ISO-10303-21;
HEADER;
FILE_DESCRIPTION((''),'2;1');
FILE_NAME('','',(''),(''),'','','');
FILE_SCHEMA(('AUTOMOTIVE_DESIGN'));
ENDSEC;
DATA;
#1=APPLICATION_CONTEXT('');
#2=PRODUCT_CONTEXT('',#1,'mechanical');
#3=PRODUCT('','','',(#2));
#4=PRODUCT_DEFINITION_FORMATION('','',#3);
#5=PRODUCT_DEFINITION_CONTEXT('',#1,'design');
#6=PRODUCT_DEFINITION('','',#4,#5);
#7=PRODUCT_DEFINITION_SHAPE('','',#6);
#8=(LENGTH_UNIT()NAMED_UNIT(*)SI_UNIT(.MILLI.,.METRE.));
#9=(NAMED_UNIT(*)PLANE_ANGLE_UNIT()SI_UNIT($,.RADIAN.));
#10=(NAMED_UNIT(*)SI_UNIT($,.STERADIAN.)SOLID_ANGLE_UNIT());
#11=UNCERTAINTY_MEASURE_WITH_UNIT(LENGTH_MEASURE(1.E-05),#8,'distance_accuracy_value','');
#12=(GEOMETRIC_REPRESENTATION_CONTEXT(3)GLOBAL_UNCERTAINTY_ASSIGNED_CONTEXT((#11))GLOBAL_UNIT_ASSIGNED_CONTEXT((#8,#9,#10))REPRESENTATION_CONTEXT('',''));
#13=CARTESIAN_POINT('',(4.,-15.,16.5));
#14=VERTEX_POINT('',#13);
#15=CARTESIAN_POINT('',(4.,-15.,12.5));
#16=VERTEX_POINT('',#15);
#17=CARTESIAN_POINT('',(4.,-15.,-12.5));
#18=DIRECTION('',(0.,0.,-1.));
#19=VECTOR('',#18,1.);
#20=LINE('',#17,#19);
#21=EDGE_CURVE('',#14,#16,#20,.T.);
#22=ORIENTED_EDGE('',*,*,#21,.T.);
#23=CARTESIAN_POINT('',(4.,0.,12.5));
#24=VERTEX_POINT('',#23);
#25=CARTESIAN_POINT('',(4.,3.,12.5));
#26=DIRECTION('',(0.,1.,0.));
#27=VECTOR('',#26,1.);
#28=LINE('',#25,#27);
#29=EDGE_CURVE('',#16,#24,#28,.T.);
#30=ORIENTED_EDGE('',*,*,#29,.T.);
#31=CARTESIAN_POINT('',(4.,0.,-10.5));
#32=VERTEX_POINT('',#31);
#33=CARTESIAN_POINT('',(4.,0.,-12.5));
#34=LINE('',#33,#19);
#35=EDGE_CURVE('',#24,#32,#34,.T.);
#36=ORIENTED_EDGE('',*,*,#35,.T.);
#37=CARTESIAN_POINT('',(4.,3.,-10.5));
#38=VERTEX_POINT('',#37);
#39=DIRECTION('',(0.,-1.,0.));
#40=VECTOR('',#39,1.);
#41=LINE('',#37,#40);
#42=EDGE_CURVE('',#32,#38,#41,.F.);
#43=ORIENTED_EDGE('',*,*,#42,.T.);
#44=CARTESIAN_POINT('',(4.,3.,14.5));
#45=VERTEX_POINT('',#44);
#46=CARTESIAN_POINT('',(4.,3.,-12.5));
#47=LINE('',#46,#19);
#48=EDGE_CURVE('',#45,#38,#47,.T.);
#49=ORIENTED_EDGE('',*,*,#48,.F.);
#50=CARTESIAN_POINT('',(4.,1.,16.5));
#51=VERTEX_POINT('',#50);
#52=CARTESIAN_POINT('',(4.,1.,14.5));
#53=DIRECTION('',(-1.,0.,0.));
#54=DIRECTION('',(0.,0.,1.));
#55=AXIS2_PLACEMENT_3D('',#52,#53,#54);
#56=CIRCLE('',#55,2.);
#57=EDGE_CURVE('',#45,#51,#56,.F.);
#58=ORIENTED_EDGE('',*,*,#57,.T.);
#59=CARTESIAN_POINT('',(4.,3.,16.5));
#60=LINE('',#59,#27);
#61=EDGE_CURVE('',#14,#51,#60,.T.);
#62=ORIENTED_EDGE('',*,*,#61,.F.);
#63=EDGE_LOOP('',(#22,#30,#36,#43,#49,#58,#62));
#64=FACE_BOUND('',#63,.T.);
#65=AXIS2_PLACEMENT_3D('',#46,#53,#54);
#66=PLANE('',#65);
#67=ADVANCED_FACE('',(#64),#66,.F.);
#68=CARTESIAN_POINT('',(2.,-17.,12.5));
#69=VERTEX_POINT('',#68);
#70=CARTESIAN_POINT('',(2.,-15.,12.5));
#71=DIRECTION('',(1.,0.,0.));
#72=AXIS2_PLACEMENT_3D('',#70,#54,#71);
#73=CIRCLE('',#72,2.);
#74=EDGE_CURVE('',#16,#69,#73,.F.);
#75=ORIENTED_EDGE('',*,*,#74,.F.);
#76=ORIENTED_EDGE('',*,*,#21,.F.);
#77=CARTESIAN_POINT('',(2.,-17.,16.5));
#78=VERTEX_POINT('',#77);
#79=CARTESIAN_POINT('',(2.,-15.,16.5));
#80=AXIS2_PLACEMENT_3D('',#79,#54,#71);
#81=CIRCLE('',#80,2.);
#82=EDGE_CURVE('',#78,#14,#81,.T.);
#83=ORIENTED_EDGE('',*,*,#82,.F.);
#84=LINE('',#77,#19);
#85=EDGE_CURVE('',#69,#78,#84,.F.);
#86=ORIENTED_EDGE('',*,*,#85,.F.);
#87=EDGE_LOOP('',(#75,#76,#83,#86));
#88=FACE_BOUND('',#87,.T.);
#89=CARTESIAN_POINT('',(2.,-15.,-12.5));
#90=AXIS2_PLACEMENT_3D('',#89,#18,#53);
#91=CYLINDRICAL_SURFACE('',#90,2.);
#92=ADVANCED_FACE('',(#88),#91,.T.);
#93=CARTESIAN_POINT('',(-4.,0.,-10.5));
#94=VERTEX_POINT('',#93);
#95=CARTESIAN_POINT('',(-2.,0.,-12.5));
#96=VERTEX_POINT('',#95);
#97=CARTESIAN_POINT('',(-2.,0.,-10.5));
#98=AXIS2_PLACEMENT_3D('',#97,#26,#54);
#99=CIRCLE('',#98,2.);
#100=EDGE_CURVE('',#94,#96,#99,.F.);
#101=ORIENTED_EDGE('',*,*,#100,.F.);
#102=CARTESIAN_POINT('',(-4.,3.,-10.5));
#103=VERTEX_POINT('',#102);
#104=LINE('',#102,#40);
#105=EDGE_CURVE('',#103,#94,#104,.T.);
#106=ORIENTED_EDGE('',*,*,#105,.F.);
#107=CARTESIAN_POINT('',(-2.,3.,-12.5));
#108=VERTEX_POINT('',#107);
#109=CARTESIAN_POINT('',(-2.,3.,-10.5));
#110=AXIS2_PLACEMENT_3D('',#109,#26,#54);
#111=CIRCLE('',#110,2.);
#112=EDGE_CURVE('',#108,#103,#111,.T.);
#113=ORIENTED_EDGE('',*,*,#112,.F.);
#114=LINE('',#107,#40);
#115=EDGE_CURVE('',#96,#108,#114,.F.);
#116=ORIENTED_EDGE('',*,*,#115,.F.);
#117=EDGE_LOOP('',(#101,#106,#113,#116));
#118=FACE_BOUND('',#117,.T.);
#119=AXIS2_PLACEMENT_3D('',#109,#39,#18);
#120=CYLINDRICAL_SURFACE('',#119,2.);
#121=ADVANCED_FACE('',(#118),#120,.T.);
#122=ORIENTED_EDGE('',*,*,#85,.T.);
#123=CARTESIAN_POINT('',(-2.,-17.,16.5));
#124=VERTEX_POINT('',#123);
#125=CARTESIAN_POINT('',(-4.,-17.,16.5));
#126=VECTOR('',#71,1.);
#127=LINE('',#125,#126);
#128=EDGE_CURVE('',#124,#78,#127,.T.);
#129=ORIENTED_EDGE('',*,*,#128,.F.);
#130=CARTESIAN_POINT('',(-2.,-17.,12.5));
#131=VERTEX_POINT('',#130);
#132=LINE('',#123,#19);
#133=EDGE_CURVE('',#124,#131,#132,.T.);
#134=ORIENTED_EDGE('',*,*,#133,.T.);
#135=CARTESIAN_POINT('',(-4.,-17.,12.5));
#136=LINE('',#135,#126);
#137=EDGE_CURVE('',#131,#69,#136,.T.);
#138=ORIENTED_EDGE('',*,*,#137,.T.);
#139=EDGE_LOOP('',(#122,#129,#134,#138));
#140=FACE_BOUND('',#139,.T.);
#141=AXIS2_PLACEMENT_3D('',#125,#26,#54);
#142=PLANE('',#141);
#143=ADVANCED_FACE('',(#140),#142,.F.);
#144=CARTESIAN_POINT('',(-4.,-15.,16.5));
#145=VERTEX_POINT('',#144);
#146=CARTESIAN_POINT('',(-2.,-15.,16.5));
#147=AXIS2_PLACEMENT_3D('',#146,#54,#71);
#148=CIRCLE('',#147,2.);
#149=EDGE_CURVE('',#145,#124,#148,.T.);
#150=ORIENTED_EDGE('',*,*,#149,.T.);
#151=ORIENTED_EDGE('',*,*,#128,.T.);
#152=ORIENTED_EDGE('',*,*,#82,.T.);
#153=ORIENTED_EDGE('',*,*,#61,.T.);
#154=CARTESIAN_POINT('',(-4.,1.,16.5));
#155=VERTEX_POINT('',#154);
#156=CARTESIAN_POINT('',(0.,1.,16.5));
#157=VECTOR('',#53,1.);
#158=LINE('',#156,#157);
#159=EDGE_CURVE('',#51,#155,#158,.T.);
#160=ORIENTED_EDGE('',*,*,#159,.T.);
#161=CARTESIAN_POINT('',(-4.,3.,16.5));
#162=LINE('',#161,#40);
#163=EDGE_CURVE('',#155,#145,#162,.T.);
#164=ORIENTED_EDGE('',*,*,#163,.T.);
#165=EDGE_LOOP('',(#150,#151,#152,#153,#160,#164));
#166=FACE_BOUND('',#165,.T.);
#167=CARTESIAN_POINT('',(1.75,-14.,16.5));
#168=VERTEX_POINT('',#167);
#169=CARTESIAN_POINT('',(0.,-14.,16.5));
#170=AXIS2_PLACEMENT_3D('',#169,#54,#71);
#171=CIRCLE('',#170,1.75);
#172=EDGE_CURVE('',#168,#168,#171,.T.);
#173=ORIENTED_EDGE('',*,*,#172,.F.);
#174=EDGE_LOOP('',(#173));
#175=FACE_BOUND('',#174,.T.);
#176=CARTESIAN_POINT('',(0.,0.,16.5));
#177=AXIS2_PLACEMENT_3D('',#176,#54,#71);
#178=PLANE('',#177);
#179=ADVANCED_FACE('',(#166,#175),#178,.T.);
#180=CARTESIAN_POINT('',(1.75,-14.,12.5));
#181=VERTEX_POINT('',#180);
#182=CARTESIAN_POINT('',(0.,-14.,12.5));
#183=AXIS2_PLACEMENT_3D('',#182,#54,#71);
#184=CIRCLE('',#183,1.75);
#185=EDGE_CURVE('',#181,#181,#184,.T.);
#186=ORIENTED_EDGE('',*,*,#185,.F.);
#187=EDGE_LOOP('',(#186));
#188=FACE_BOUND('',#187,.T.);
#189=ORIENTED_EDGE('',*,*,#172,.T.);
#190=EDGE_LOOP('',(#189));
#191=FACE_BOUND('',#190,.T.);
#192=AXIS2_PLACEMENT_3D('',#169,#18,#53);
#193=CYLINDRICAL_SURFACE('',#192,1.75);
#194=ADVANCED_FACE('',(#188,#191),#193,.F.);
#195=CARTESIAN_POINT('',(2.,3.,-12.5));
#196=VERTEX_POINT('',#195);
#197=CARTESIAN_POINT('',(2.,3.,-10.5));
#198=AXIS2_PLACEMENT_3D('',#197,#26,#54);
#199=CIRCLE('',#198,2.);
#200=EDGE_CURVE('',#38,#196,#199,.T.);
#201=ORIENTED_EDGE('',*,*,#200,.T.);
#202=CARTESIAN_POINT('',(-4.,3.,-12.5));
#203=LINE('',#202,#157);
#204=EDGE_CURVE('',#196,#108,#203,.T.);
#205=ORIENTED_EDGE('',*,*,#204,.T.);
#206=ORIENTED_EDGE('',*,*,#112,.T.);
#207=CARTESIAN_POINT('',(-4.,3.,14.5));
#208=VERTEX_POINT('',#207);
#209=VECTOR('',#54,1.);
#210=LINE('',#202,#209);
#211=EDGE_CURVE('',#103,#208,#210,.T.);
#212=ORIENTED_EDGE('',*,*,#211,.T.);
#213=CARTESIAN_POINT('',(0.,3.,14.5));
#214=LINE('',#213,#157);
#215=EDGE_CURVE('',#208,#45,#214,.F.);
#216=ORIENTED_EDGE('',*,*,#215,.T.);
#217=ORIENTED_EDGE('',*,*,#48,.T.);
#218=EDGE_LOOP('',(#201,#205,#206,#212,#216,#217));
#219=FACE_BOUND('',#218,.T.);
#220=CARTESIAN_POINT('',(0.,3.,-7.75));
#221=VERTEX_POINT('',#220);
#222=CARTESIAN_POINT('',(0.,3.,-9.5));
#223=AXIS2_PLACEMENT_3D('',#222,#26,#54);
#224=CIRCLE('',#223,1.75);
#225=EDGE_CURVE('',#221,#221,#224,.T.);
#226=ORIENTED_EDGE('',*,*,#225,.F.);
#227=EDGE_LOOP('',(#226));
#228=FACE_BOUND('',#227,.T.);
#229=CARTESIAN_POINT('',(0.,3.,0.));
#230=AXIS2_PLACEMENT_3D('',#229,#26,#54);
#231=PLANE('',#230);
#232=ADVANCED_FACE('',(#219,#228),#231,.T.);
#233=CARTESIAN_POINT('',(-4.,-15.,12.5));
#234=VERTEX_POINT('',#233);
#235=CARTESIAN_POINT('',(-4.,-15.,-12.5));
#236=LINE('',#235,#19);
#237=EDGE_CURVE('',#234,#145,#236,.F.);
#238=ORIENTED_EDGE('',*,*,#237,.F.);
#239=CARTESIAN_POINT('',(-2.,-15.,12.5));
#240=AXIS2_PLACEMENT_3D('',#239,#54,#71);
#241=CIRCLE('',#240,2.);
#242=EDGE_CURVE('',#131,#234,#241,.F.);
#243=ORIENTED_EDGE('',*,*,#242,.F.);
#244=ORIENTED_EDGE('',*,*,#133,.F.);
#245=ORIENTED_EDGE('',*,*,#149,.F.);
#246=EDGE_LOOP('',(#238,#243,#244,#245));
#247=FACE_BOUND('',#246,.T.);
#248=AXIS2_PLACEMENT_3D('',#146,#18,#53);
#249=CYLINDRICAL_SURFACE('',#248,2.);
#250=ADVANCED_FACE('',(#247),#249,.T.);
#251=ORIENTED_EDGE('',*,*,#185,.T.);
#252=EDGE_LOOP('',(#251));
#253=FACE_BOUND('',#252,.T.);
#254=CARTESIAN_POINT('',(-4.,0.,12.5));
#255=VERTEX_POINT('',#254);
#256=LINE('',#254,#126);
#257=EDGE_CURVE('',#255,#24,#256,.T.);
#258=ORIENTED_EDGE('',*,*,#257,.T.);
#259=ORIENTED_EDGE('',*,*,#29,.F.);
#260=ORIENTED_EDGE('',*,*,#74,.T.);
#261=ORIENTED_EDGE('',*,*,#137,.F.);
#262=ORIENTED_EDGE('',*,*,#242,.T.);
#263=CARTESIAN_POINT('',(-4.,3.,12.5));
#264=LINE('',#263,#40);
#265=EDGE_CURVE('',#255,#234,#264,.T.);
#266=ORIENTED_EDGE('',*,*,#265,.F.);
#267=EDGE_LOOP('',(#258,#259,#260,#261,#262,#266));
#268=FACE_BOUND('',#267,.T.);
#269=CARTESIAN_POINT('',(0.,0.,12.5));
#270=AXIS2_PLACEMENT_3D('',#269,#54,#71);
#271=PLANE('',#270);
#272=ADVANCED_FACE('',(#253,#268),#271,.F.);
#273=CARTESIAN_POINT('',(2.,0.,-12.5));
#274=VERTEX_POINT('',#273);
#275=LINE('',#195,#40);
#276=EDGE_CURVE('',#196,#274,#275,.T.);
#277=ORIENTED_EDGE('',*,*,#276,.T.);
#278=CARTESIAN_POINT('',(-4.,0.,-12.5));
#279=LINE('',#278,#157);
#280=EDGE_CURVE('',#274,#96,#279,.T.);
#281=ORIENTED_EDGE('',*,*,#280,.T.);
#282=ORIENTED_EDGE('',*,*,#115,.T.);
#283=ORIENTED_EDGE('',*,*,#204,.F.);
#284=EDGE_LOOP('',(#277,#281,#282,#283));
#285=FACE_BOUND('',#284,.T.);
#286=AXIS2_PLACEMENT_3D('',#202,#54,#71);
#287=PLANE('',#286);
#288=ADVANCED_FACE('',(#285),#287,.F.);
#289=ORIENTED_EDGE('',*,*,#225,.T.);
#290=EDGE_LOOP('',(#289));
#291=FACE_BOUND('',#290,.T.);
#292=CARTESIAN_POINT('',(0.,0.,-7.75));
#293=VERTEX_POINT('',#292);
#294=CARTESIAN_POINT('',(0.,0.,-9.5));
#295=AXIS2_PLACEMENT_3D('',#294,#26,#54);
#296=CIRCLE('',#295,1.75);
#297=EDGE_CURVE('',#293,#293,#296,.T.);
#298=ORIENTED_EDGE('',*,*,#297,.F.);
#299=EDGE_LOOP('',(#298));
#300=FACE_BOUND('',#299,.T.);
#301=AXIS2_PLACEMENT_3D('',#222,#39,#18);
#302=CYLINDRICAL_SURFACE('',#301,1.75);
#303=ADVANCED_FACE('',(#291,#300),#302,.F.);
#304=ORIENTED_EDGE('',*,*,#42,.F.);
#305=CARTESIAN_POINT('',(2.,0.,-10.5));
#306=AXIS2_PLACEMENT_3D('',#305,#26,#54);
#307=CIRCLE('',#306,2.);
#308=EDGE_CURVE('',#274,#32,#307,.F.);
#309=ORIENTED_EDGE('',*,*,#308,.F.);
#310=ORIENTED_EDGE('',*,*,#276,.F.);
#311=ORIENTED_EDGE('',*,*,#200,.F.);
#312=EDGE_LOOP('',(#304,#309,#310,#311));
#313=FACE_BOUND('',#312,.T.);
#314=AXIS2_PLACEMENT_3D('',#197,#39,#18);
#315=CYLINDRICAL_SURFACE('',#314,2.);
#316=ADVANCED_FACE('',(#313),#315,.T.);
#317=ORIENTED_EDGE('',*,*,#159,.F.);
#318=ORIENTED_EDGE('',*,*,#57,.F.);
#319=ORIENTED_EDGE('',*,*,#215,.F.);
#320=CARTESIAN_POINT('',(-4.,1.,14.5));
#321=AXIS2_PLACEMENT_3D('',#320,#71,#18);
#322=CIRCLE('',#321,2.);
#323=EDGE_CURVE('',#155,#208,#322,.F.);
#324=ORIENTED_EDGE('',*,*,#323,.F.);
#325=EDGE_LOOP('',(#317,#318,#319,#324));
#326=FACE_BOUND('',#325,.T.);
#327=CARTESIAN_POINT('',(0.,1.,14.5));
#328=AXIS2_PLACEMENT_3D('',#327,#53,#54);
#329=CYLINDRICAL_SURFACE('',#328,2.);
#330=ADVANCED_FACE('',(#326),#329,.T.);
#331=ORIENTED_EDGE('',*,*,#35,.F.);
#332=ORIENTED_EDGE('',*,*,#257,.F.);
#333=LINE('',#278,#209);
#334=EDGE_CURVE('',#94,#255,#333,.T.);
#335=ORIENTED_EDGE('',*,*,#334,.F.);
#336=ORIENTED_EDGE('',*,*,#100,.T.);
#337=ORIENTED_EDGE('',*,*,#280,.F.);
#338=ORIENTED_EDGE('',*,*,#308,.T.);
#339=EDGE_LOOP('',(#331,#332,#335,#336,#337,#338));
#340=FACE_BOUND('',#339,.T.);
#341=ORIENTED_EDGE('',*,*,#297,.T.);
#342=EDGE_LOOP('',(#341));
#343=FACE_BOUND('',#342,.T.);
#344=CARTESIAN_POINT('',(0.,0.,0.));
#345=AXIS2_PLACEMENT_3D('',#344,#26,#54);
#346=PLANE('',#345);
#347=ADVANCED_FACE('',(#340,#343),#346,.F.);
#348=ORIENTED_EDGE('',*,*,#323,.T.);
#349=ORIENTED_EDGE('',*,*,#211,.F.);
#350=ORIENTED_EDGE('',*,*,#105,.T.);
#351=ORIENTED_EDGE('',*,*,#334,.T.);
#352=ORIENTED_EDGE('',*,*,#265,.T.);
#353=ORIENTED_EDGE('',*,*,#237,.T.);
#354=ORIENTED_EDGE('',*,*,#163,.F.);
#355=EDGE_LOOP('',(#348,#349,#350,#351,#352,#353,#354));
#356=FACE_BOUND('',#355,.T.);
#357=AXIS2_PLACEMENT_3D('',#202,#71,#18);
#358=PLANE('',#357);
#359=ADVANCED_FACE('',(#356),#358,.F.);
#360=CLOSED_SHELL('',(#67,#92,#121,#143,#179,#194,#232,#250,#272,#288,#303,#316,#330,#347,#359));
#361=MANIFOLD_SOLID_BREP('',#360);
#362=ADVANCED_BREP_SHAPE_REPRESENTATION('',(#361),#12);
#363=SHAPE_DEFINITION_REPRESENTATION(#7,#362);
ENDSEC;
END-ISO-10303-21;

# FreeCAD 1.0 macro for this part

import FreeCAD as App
import Part
import Sketcher

V = App.Vector
Q = App.Units.Quantity


def edges_at(feature, points):
    """Names of the edges that pass closest to the given points."""
    edges = feature.Shape.Edges
    near = lambda p: min(range(len(edges)), key=lambda i: edges[i].distToShape(Part.Vertex(*p))[0])
    return sorted({f"Edge{near(p) + 1}" for p in points})

doc = App.newDocument("Part")
body = doc.addObject("PartDesign::Body", "Body")

# Sketch on XZ plane
sketch1 = body.newObject("Sketcher::SketchObject", "Sketch")
sketch1.AttachmentSupport = (doc.getObject("XZ_Plane"), [""])
sketch1.MapMode = "FlatFace"
sketch1.addGeometry([
    Part.LineSegment(V(-4, -12.5, 0), V(-4, 12.5, 0)),  # 0
    Part.LineSegment(V(-4, 12.5, 0), V(4, 12.5, 0)),  # 1
    Part.LineSegment(V(4, 12.5, 0), V(4, -12.5, 0)),  # 2
    Part.LineSegment(V(4, -12.5, 0), V(-4, -12.5, 0)),  # 3
    Part.Circle(V(0, -9.5, 0), V(0, 0, 1), 1.8),  # 4
], False)
sketch1.addConstraint([
    Sketcher.Constraint("Coincident", 0, 2, 1, 1),
    Sketcher.Constraint("Coincident", 1, 2, 2, 1),
    Sketcher.Constraint("Coincident", 2, 2, 3, 1),
    Sketcher.Constraint("Coincident", 3, 2, 0, 1),
    Sketcher.Constraint("Vertical", 0),
    Sketcher.Constraint("Horizontal", 1),
    Sketcher.Constraint("Vertical", 2),
    Sketcher.Constraint("Horizontal", 3),
    Sketcher.Constraint("Symmetric", 0, 2, 2, 2, -1, 1),
    Sketcher.Constraint("PointOnObject", 4, 3, -2),
    Sketcher.Constraint("Diameter", 4, Q("3.5 mm")),
    Sketcher.Constraint("DistanceX", 1, 1, 1, 2, Q("8 mm")),
    Sketcher.Constraint("DistanceY", 0, 1, 0, 2, Q("25 mm")),
    Sketcher.Constraint("DistanceY", 4, 3, 0, 2, Q("22 mm")),
])
pad1 = body.newObject("PartDesign::Pad", "Pad")
pad1.Profile = sketch1
pad1.Length = 3
pad1.Reversed = True

# Sketch on XY plane
sketch2 = body.newObject("Sketcher::SketchObject", "Sketch001")
sketch2.AttachmentSupport = (doc.getObject("XY_Plane"), [""])
sketch2.MapMode = "FlatFace"
sketch2.AttachmentOffset = App.Placement(V(0, 0, 12.5), App.Rotation())
sketch2.addGeometry([
    Part.LineSegment(V(-4, 3, 0), V(-4, -17, 0)),  # 0
    Part.LineSegment(V(-4, -17, 0), V(4, -17, 0)),  # 1
    Part.LineSegment(V(4, -17, 0), V(4, 3, 0)),  # 2
    Part.LineSegment(V(4, 3, 0), V(-4, 3, 0)),  # 3
    Part.Circle(V(0, -14, 0), V(0, 0, 1), 1.8),  # 4
], False)
sketch2.addConstraint([
    Sketcher.Constraint("Coincident", 0, 2, 1, 1),
    Sketcher.Constraint("Coincident", 1, 2, 2, 1),
    Sketcher.Constraint("Coincident", 2, 2, 3, 1),
    Sketcher.Constraint("Coincident", 3, 2, 0, 1),
    Sketcher.Constraint("Vertical", 0),
    Sketcher.Constraint("Horizontal", 1),
    Sketcher.Constraint("Vertical", 2),
    Sketcher.Constraint("Horizontal", 3),
    Sketcher.Constraint("PointOnObject", 4, 3, -2),
    Sketcher.Constraint("Diameter", 4, Q("3.5 mm")),
    Sketcher.Constraint("DistanceX", 1, 1, 1, 2, Q("8 mm")),
    Sketcher.Constraint("DistanceY", 0, 2, 0, 1, Q("20 mm")),
    Sketcher.Constraint("DistanceY", 4, 3, -1, 1, Q("14 mm")),
    Sketcher.Constraint("DistanceX", 0, 2, -1, 1, Q("4 mm")),
    Sketcher.Constraint("DistanceY", 0, 2, -1, 1, Q("17 mm")),
])
pad2 = body.newObject("PartDesign::Pad", "Pad001")
pad2.Profile = sketch2
pad2.Length = 4
doc.recompute()

fillet = body.newObject("PartDesign::Fillet", "Fillet")
fillet.Base = (pad2, edges_at(pad2, [
    (0, 3, 16.5),
    (-4, -17, 14.5),
    (4, -17, 14.5),
    (-4, 1.5, -12.5),
    (4, 1.5, -12.5),
]))
fillet.Radius = 2

doc.recompute()
